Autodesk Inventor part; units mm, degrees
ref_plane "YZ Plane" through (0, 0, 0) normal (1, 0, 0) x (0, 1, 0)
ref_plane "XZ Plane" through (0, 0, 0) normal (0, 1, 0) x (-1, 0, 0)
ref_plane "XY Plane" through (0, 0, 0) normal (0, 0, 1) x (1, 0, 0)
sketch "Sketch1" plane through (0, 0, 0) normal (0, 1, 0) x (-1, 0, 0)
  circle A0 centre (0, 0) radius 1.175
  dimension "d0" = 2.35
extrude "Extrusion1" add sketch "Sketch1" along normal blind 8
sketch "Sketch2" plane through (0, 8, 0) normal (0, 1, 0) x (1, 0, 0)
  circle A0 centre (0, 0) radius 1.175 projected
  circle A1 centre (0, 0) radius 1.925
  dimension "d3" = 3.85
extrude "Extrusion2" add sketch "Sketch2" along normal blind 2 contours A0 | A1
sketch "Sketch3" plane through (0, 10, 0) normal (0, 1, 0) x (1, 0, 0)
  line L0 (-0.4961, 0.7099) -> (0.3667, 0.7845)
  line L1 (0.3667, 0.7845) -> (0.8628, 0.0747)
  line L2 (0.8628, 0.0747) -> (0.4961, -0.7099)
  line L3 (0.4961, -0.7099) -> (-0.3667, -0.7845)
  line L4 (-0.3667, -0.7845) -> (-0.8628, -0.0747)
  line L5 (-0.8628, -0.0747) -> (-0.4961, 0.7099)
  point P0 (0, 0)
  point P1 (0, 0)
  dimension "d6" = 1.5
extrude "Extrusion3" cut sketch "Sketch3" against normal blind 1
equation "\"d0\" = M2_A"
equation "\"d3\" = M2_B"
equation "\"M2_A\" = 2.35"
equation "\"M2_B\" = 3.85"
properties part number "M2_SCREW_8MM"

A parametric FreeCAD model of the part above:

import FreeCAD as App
import Part
import Sketcher
from FreeCAD import Vector
Q = App.Units.Quantity


def add_polygon(sketch, points):
    """Adds a closed chain of lines whose ends are joined by coincident constraints."""
    first, n = sketch.GeometryCount, len(points)
    for a, b in zip(points, points[1:] + points[:1]):
        sketch.addGeometry(Part.LineSegment(App.Vector(*a, 0), App.Vector(*b, 0)), False)
    for i in range(n):
        sketch.addConstraint(Sketcher.Constraint("Coincident", first + i, 2, first + (i + 1) % n, 1))

doc = App.newDocument("Part")
body = doc.addObject("PartDesign::Body", "Body")

sketch1 = body.newObject("Sketcher::SketchObject", "Sketch")
sketch1.AttachmentSupport = (doc.getObject("XZ_Plane"), [""])
sketch1.MapMode = "FlatFace"
sketch1.addGeometry(Part.Circle(Vector(0, 0, 0), Vector(0, 0, 1), 1.175), False)
sketch1.addConstraint(Sketcher.Constraint("Coincident", 0, 3, -1, 1))
sketch1.addConstraint(Sketcher.Constraint("Diameter", 0, 2.35))
pad1 = body.newObject("PartDesign::Pad", "Pad")
pad1.Profile = sketch1
pad1.Length = 8
pad1.Reversed = True

sketch2 = body.newObject("Sketcher::SketchObject", "Sketch001")
sketch2.AttachmentSupport = (doc.getObject("XZ_Plane"), [""])
sketch2.MapMode = "FlatFace"
sketch2.AttachmentOffset = App.Placement(Vector(0, 0, -8), App.Rotation())
sketch2.addGeometry(Part.Circle(Vector(0, 0, 0), Vector(0, 0, 1), 1.925), False)
sketch2.addConstraint(Sketcher.Constraint("Coincident", 0, 3, -1, 1))
sketch2.addConstraint(Sketcher.Constraint("Diameter", 0, 3.85))
pad2 = body.newObject("PartDesign::Pad", "Pad001")
pad2.Profile = sketch2
pad2.Length = 2
pad2.Reversed = True

sketch3 = body.newObject("Sketcher::SketchObject", "Sketch002")
sketch3.AttachmentSupport = (doc.getObject("XZ_Plane"), [""])
sketch3.MapMode = "FlatFace"
sketch3.AttachmentOffset = App.Placement(Vector(0, 0, -10), App.Rotation())
add_polygon(sketch3, [(0.3667, -0.7845), (-0.4961, -0.7099), (-0.8628, 0.0747), (-0.3667, 0.7845), (0.4961, 0.7099), (0.8628, -0.0747)])
sketch3.addConstraint(Sketcher.Constraint("Symmetric", 0, 2, 3, 2, -1, 1))
sketch3.addConstraint(Sketcher.Constraint("Symmetric", 1, 2, 4, 2, -1, 1))
sketch3.addConstraint(Sketcher.Constraint("Symmetric", 2, 2, 5, 2, -1, 1))
sketch3.addConstraint(Sketcher.Constraint("Equal", 0, 1))
sketch3.addConstraint(Sketcher.Constraint("Equal", 1, 2))
sketch3.addConstraint(Sketcher.Constraint("Angle", 1, Q("115.05 deg")))
sketch3.addConstraint(Sketcher.Constraint("Angle", 2, Q("55.0492 deg")))
sketch3.addConstraint(Sketcher.Constraint("DistanceY", 0, 2, -1, 1, 0.71))
sketch3.addConstraint(Sketcher.Constraint("Distance", 0, 0.866))
pocket1 = body.newObject("PartDesign::Pocket", "Pocket")
pocket1.Profile = sketch3
pocket1.Length = 1
pocket1.Reversed = True

doc.recompute()
